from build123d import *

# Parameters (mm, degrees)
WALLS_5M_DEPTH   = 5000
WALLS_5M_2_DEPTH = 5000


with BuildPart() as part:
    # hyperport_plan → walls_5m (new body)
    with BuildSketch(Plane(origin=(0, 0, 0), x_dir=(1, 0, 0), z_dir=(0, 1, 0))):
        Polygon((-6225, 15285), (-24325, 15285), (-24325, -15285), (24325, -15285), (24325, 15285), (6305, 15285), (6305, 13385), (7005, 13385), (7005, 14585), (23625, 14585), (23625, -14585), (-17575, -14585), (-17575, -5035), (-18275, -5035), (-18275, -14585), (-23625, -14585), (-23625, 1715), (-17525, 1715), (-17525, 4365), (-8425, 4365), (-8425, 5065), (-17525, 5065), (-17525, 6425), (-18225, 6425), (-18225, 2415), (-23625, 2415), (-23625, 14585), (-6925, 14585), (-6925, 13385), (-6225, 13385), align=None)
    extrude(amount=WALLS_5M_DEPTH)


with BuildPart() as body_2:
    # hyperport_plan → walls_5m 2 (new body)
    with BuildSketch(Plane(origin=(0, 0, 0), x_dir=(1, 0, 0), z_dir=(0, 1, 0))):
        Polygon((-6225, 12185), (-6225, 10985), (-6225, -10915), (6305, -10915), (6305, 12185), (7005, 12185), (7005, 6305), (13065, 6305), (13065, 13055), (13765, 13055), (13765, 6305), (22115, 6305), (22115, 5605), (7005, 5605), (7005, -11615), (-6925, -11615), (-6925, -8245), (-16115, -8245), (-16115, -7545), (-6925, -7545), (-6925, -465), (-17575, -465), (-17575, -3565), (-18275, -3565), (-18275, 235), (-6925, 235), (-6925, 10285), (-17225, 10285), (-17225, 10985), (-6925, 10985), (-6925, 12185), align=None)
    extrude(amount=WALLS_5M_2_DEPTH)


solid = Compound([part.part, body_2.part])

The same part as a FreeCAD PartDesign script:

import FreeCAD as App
import Part
import Sketcher
Q = App.Units.Quantity


def add_polygon(sketch, points):
    """Adds a closed chain of lines whose ends are joined by coincident constraints."""
    first, n = sketch.GeometryCount, len(points)
    for a, b in zip(points, points[1:] + points[:1]):
        sketch.addGeometry(Part.LineSegment(App.Vector(*a, 0), App.Vector(*b, 0)), False)
    for i in range(n):
        sketch.addConstraint(Sketcher.Constraint("Coincident", first + i, 2, first + (i + 1) % n, 1))

doc = App.newDocument("Part")
body = doc.addObject("PartDesign::Body", "Body")

sketch1 = body.newObject("Sketcher::SketchObject", "Sketch")
sketch1.AttachmentSupport = (doc.getObject("XZ_Plane"), [""])
sketch1.MapMode = "FlatFace"
add_polygon(sketch1, [(-6225, -15285), (-24325, -15285), (-24325, 15285), (24325, 15285), (24325, -15285), (6305, -15285), (6305, -13385), (7005, -13385), (7005, -14585), (23625, -14585), (23625, 14585), (-17575, 14585), (-17575, 5035), (-18275, 5035), (-18275, 14585), (-23625, 14585), (-23625, -1715), (-17525, -1715), (-17525, -4365), (-8425, -4365), (-8425, -5065), (-17525, -5065), (-17525, -6425), (-18225, -6425), (-18225, -2415), (-23625, -2415), (-23625, -14585), (-6925, -14585), (-6925, -13385), (-6225, -13385)])
sketch1.addConstraint(Sketcher.Constraint("Horizontal", 0))
sketch1.addConstraint(Sketcher.Constraint("Vertical", 1))
sketch1.addConstraint(Sketcher.Constraint("Horizontal", 2))
sketch1.addConstraint(Sketcher.Constraint("Vertical", 3))
sketch1.addConstraint(Sketcher.Constraint("Horizontal", 4))
sketch1.addConstraint(Sketcher.Constraint("Vertical", 5))
sketch1.addConstraint(Sketcher.Constraint("Horizontal", 6))
sketch1.addConstraint(Sketcher.Constraint("Vertical", 7))
sketch1.addConstraint(Sketcher.Constraint("Horizontal", 8))
sketch1.addConstraint(Sketcher.Constraint("Vertical", 9))
sketch1.addConstraint(Sketcher.Constraint("Horizontal", 10))
sketch1.addConstraint(Sketcher.Constraint("Vertical", 11))
sketch1.addConstraint(Sketcher.Constraint("Horizontal", 12))
sketch1.addConstraint(Sketcher.Constraint("Vertical", 13))
sketch1.addConstraint(Sketcher.Constraint("Horizontal", 14))
sketch1.addConstraint(Sketcher.Constraint("Vertical", 15))
sketch1.addConstraint(Sketcher.Constraint("Horizontal", 16))
sketch1.addConstraint(Sketcher.Constraint("Vertical", 17))
sketch1.addConstraint(Sketcher.Constraint("Horizontal", 18))
sketch1.addConstraint(Sketcher.Constraint("Vertical", 19))
sketch1.addConstraint(Sketcher.Constraint("Horizontal", 20))
sketch1.addConstraint(Sketcher.Constraint("Vertical", 21))
sketch1.addConstraint(Sketcher.Constraint("Horizontal", 22))
sketch1.addConstraint(Sketcher.Constraint("Vertical", 23))
sketch1.addConstraint(Sketcher.Constraint("Horizontal", 24))
sketch1.addConstraint(Sketcher.Constraint("Vertical", 25))
sketch1.addConstraint(Sketcher.Constraint("Horizontal", 26))
sketch1.addConstraint(Sketcher.Constraint("Vertical", 27))
sketch1.addConstraint(Sketcher.Constraint("Horizontal", 28))
sketch1.addConstraint(Sketcher.Constraint("Vertical", 29))
sketch1.addConstraint(Sketcher.Constraint("Symmetric", 0, 2, 2, 2, -1, 1))
sketch1.addConstraint(Sketcher.Constraint("Symmetric", 8, 2, 14, 2, -1, 1))
sketch1.addConstraint(Sketcher.Constraint("Symmetric", 9, 2, 25, 2, -1, 1))
sketch1.addConstraint(Sketcher.Constraint("Horizontal", 0, 2, 3, 2))
sketch1.addConstraint(Sketcher.Constraint("Horizontal", 10, 2, 13, 2))
sketch1.addConstraint(Sketcher.Constraint("Horizontal", 6, 2, 27, 2))
sketch1.addConstraint(Sketcher.Constraint("Vertical", 17, 2, 20, 2))
sketch1.addConstraint(Sketcher.Constraint("Equal", 6, 12))
sketch1.addConstraint(Sketcher.Constraint("Equal", 12, 22))
sketch1.addConstraint(Sketcher.Constraint("Equal", 22, 28))
sketch1.addConstraint(Sketcher.Constraint("Equal", 28, 19))
sketch1.addConstraint(Sketcher.Constraint("DistanceX", 0, 2, 0, 1, Q("18100 mm")))
sketch1.addConstraint(Sketcher.Constraint("DistanceX", 2, 1, 2, 2, Q("48650 mm")))
sketch1.addConstraint(Sketcher.Constraint("DistanceX", 4, 2, 4, 1, Q("18020 mm")))
sketch1.addConstraint(Sketcher.Constraint("DistanceX", 6, 1, 6, 2, Q("700 mm")))
sketch1.addConstraint(Sketcher.Constraint("DistanceX", 8, 1, 8, 2, Q("16620 mm")))
sketch1.addConstraint(Sketcher.Constraint("DistanceX", 10, 2, 10, 1, Q("41200 mm")))
sketch1.addConstraint(Sketcher.Constraint("DistanceX", 16, 1, 16, 2, Q("6100 mm")))
sketch1.addConstraint(Sketcher.Constraint("DistanceX", 18, 1, 18, 2, Q("9100 mm")))
sketch1.addConstraint(Sketcher.Constraint("DistanceY", 1, 1, 1, 2, Q("30570 mm")))
sketch1.addConstraint(Sketcher.Constraint("DistanceY", 5, 1, 5, 2, Q("1900 mm")))
sketch1.addConstraint(Sketcher.Constraint("DistanceY", 7, 2, 7, 1, Q("1200 mm")))
sketch1.addConstraint(Sketcher.Constraint("DistanceY", 11, 2, 11, 1, Q("9550 mm")))
sketch1.addConstraint(Sketcher.Constraint("DistanceY", 15, 2, 15, 1, Q("16300 mm")))
sketch1.addConstraint(Sketcher.Constraint("DistanceY", 17, 2, 17, 1, Q("2650 mm")))
sketch1.addConstraint(Sketcher.Constraint("DistanceY", 21, 2, 21, 1, Q("1360 mm")))
sketch1.addConstraint(Sketcher.Constraint("DistanceY", 23, 1, 23, 2, Q("4010 mm")))
pad1 = body.newObject("PartDesign::Pad", "Pad")
pad1.Profile = sketch1
pad1.Length = 5000
pad1.Reversed = True
body2 = doc.addObject("PartDesign::Body", "Body001")

sketch2 = body2.newObject("Sketcher::SketchObject", "Sketch001")
sketch2.AttachmentSupport = (doc.getObject("XZ_Plane001"), [""])
sketch2.MapMode = "FlatFace"
add_polygon(sketch2, [(-6225, 10915), (-6225, -12185), (-6925, -12185), (-6925, -10985), (-17225, -10985), (-17225, -10285), (-6925, -10285), (-6925, -235), (-18275, -235), (-18275, 3565), (-17575, 3565), (-17575, 465), (-6925, 465), (-6925, 7545), (-16115, 7545), (-16115, 8245), (-6925, 8245), (-6925, 11615), (7005, 11615), (7005, -5605), (22115, -5605), (22115, -6305), (13765, -6305), (13765, -13055), (13065, -13055), (13065, -6305), (7005, -6305), (7005, -12185), (6305, -12185), (6305, 10915)])
sketch2.addConstraint(Sketcher.Constraint("Vertical", 0))
sketch2.addConstraint(Sketcher.Constraint("Horizontal", 1))
sketch2.addConstraint(Sketcher.Constraint("Vertical", 2))
sketch2.addConstraint(Sketcher.Constraint("Horizontal", 3))
sketch2.addConstraint(Sketcher.Constraint("Vertical", 4))
sketch2.addConstraint(Sketcher.Constraint("Horizontal", 5))
sketch2.addConstraint(Sketcher.Constraint("Vertical", 6))
sketch2.addConstraint(Sketcher.Constraint("Horizontal", 7))
sketch2.addConstraint(Sketcher.Constraint("Vertical", 8))
sketch2.addConstraint(Sketcher.Constraint("Horizontal", 9))
sketch2.addConstraint(Sketcher.Constraint("Vertical", 10))
sketch2.addConstraint(Sketcher.Constraint("Horizontal", 11))
sketch2.addConstraint(Sketcher.Constraint("Vertical", 12))
sketch2.addConstraint(Sketcher.Constraint("Horizontal", 13))
sketch2.addConstraint(Sketcher.Constraint("Vertical", 14))
sketch2.addConstraint(Sketcher.Constraint("Horizontal", 15))
sketch2.addConstraint(Sketcher.Constraint("Vertical", 16))
sketch2.addConstraint(Sketcher.Constraint("Horizontal", 17))
sketch2.addConstraint(Sketcher.Constraint("Vertical", 18))
sketch2.addConstraint(Sketcher.Constraint("Horizontal", 19))
sketch2.addConstraint(Sketcher.Constraint("Vertical", 20))
sketch2.addConstraint(Sketcher.Constraint("Horizontal", 21))
sketch2.addConstraint(Sketcher.Constraint("Vertical", 22))
sketch2.addConstraint(Sketcher.Constraint("Horizontal", 23))
sketch2.addConstraint(Sketcher.Constraint("Vertical", 24))
sketch2.addConstraint(Sketcher.Constraint("Horizontal", 25))
sketch2.addConstraint(Sketcher.Constraint("Vertical", 26))
sketch2.addConstraint(Sketcher.Constraint("Horizontal", 27))
sketch2.addConstraint(Sketcher.Constraint("Vertical", 28))
sketch2.addConstraint(Sketcher.Constraint("Horizontal", 29))
sketch2.addConstraint(Sketcher.Constraint("Horizontal", 21, 2, 24, 2))
sketch2.addConstraint(Sketcher.Constraint("Horizontal", 1, 2, 26, 2))
sketch2.addConstraint(Sketcher.Constraint("Vertical", 2, 2, 5, 2))
sketch2.addConstraint(Sketcher.Constraint("Vertical", 6, 2, 11, 2))
sketch2.addConstraint(Sketcher.Constraint("Vertical", 12, 2, 15, 2))
sketch2.addConstraint(Sketcher.Constraint("Vertical", 18, 2, 25, 2))
sketch2.addConstraint(Sketcher.Constraint("Equal", 1, 9))
sketch2.addConstraint(Sketcher.Constraint("Equal", 9, 23))
sketch2.addConstraint(Sketcher.Constraint("Equal", 23, 27))
sketch2.addConstraint(Sketcher.Constraint("Equal", 27, 4))
sketch2.addConstraint(Sketcher.Constraint("Equal", 4, 14))
sketch2.addConstraint(Sketcher.Constraint("Equal", 14, 20))
sketch2.addConstraint(Sketcher.Constraint("DistanceX", 1, 2, 1, 1, Q("700 mm")))
sketch2.addConstraint(Sketcher.Constraint("DistanceX", 3, 2, 3, 1, Q("10300 mm")))
sketch2.addConstraint(Sketcher.Constraint("DistanceX", 7, 2, 7, 1, Q("11350 mm")))
sketch2.addConstraint(Sketcher.Constraint("DistanceX", 13, 2, 13, 1, Q("9190 mm")))
sketch2.addConstraint(Sketcher.Constraint("DistanceX", 17, 1, 17, 2, Q("13930 mm")))
sketch2.addConstraint(Sketcher.Constraint("DistanceX", 19, 1, 19, 2, Q("15110 mm")))
sketch2.addConstraint(Sketcher.Constraint("DistanceX", 21, 2, 21, 1, Q("8350 mm")))
sketch2.addConstraint(Sketcher.Constraint("DistanceY", 0, 2, 0, 1, Q("23100 mm")))
sketch2.addConstraint(Sketcher.Constraint("DistanceY", 2, 1, 2, 2, Q("1200 mm")))
sketch2.addConstraint(Sketcher.Constraint("DistanceY", 6, 1, 6, 2, Q("10050 mm")))
sketch2.addConstraint(Sketcher.Constraint("DistanceY", 8, 1, 8, 2, Q("3800 mm")))
sketch2.addConstraint(Sketcher.Constraint("DistanceY", 10, 2, 10, 1, Q("3100 mm")))
sketch2.addConstraint(Sketcher.Constraint("DistanceY", 12, 1, 12, 2, Q("7080 mm")))
sketch2.addConstraint(Sketcher.Constraint("DistanceY", 16, 1, 16, 2, Q("3370 mm")))
sketch2.addConstraint(Sketcher.Constraint("DistanceY", 18, 2, 18, 1, Q("17220 mm")))
sketch2.addConstraint(Sketcher.Constraint("DistanceY", 22, 2, 22, 1, Q("6750 mm")))
sketch2.addConstraint(Sketcher.Constraint("DistanceX", 0, 2, -1, 1, Q("6225 mm")))
sketch2.addConstraint(Sketcher.Constraint("DistanceY", 0, 2, -1, 1, Q("12185 mm")))
pad2 = body2.newObject("PartDesign::Pad", "Pad001")
pad2.Profile = sketch2
pad2.Length = 5000
pad2.Reversed = True

doc.recompute()
